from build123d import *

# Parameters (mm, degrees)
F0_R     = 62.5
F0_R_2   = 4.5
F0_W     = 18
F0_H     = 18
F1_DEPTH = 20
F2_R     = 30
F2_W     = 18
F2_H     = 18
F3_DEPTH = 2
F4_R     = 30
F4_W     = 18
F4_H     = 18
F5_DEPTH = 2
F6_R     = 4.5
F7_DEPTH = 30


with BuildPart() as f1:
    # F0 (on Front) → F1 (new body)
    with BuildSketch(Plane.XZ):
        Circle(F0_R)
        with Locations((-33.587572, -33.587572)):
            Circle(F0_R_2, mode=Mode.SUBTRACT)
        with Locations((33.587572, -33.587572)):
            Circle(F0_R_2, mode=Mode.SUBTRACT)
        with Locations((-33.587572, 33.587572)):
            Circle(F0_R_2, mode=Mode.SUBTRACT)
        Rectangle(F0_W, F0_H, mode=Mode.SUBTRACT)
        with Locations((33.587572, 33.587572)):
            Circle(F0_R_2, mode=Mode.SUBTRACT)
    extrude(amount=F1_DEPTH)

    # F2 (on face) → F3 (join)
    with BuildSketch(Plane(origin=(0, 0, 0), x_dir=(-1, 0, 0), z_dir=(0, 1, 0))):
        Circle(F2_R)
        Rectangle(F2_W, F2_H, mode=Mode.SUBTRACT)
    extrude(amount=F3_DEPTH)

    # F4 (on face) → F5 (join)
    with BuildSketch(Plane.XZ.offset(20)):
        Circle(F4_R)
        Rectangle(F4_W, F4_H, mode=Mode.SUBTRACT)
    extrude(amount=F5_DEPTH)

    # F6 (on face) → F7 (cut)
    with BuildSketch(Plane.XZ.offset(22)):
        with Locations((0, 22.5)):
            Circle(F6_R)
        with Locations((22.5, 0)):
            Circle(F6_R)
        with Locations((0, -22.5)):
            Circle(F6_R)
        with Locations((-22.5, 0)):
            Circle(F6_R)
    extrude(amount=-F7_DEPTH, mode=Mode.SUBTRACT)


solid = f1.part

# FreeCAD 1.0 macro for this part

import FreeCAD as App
import Part
import Sketcher
from FreeCAD import Vector
Q = App.Units.Quantity

doc = App.newDocument("Part")
body = doc.addObject("PartDesign::Body", "Body")

# Sketch on XZ plane
sketch1 = body.newObject("Sketcher::SketchObject", "Sketch")
sketch1.AttachmentSupport = (doc.getObject("XZ_Plane"), [""])
sketch1.MapMode = "FlatFace"
sketch1.addGeometry([
    Part.Circle(Vector(0, 0, 0), Vector(0, 0, 1), 62.5),  # 0
    Part.Circle(Vector(-33.6, -33.6, 0), Vector(0, 0, 1), 4.5),  # 1
    Part.Circle(Vector(33.6, -33.6, 0), Vector(0, 0, 1), 4.5),  # 2
    Part.LineSegment(Vector(9, -9, 0), Vector(-9, -9, 0)),  # 3
    Part.LineSegment(Vector(-9, -9, 0), Vector(-9, 9, 0)),  # 4
    Part.LineSegment(Vector(-9, 9, 0), Vector(9, 9, 0)),  # 5
    Part.LineSegment(Vector(9, 9, 0), Vector(9, -9, 0)),  # 6
    Part.Circle(Vector(-33.6, 33.6, 0), Vector(0, 0, 1), 4.5),  # 7
    Part.Circle(Vector(33.6, 33.6, 0), Vector(0, 0, 1), 4.5),  # 8
], False)
sketch1.addConstraint([
    Sketcher.Constraint("Coincident", 3, 2, 4, 1),
    Sketcher.Constraint("Coincident", 4, 2, 5, 1),
    Sketcher.Constraint("Coincident", 5, 2, 6, 1),
    Sketcher.Constraint("Coincident", 6, 2, 3, 1),
    Sketcher.Constraint("Horizontal", 3),
    Sketcher.Constraint("Vertical", 4),
    Sketcher.Constraint("Horizontal", 5),
    Sketcher.Constraint("Vertical", 6),
    Sketcher.Constraint("Coincident", 0, 3, -1, 1),
    Sketcher.Constraint("Equal", 1, 2),
    Sketcher.Constraint("Equal", 2, 7),
    Sketcher.Constraint("Equal", 7, 8),
    Sketcher.Constraint("Symmetric", 2, 3, 7, 3, -1, 1),
    Sketcher.Constraint("Symmetric", 1, 3, 8, 3, -1, 1),
    Sketcher.Constraint("Symmetric", 3, 2, 5, 2, -1, 1),
    Sketcher.Constraint("Symmetric", 1, 3, 2, 3, -2),
    Sketcher.Constraint("Equal", 5, 4),
    Sketcher.Constraint("Diameter", 0, Q("125 mm")),
    Sketcher.Constraint("Diameter", 1, Q("9 mm")),
    Sketcher.Constraint("DistanceX", 3, 2, 3, 1, Q("18 mm")),
    Sketcher.Constraint("DistanceX", 1, 3, -1, 1, Q("33.587572 mm")),
    Sketcher.Constraint("DistanceY", 1, 3, -1, 1, Q("33.587572 mm")),
])
pad1 = body.newObject("PartDesign::Pad", "Pad")
pad1.Profile = sketch1
pad1.Length = 20

# Sketch on XZ plane
sketch2 = body.newObject("Sketcher::SketchObject", "Sketch001")
sketch2.AttachmentSupport = (doc.getObject("XZ_Plane"), [""])
sketch2.MapMode = "FlatFace"
sketch2.addGeometry([
    Part.Circle(Vector(0, 0, 0), Vector(0, 0, 1), 30),  # 0
    Part.LineSegment(Vector(-9, -9, 0), Vector(9, -9, 0)),  # 1
    Part.LineSegment(Vector(9, -9, 0), Vector(9, 9, 0)),  # 2
    Part.LineSegment(Vector(9, 9, 0), Vector(-9, 9, 0)),  # 3
    Part.LineSegment(Vector(-9, 9, 0), Vector(-9, -9, 0)),  # 4
], False)
sketch2.addConstraint([
    Sketcher.Constraint("Coincident", 1, 2, 2, 1),
    Sketcher.Constraint("Coincident", 2, 2, 3, 1),
    Sketcher.Constraint("Coincident", 3, 2, 4, 1),
    Sketcher.Constraint("Coincident", 4, 2, 1, 1),
    Sketcher.Constraint("Horizontal", 1),
    Sketcher.Constraint("Vertical", 2),
    Sketcher.Constraint("Horizontal", 3),
    Sketcher.Constraint("Vertical", 4),
    Sketcher.Constraint("Coincident", 0, 3, -1, 1),
    Sketcher.Constraint("Symmetric", 1, 2, 3, 2, -1, 1),
    Sketcher.Constraint("Equal", 3, 2),
    Sketcher.Constraint("Diameter", 0, Q("60 mm")),
    Sketcher.Constraint("DistanceX", 1, 1, 1, 2, Q("18 mm")),
])
pad2 = body.newObject("PartDesign::Pad", "Pad001")
pad2.Profile = sketch2
pad2.Length = 2
pad2.Reversed = True

# Sketch on XZ plane
sketch3 = body.newObject("Sketcher::SketchObject", "Sketch002")
sketch3.AttachmentSupport = (doc.getObject("XZ_Plane"), [""])
sketch3.MapMode = "FlatFace"
sketch3.AttachmentOffset = App.Placement(Vector(0, 0, 20), App.Rotation())
sketch3.addGeometry([
    Part.Circle(Vector(0, 0, 0), Vector(0, 0, 1), 30),  # 0
    Part.LineSegment(Vector(9, -9, 0), Vector(-9, -9, 0)),  # 1
    Part.LineSegment(Vector(-9, -9, 0), Vector(-9, 9, 0)),  # 2
    Part.LineSegment(Vector(-9, 9, 0), Vector(9, 9, 0)),  # 3
    Part.LineSegment(Vector(9, 9, 0), Vector(9, -9, 0)),  # 4
], False)
sketch3.addConstraint([
    Sketcher.Constraint("Coincident", 1, 2, 2, 1),
    Sketcher.Constraint("Coincident", 2, 2, 3, 1),
    Sketcher.Constraint("Coincident", 3, 2, 4, 1),
    Sketcher.Constraint("Coincident", 4, 2, 1, 1),
    Sketcher.Constraint("Horizontal", 1),
    Sketcher.Constraint("Vertical", 2),
    Sketcher.Constraint("Horizontal", 3),
    Sketcher.Constraint("Vertical", 4),
    Sketcher.Constraint("Coincident", 0, 3, -1, 1),
    Sketcher.Constraint("Symmetric", 1, 2, 3, 2, -1, 1),
    Sketcher.Constraint("Equal", 3, 2),
    Sketcher.Constraint("Diameter", 0, Q("60 mm")),
    Sketcher.Constraint("DistanceX", 1, 2, 1, 1, Q("18 mm")),
])
pad3 = body.newObject("PartDesign::Pad", "Pad002")
pad3.Profile = sketch3
pad3.Length = 2

# Sketch on XZ plane
sketch4 = body.newObject("Sketcher::SketchObject", "Sketch003")
sketch4.AttachmentSupport = (doc.getObject("XZ_Plane"), [""])
sketch4.MapMode = "FlatFace"
sketch4.AttachmentOffset = App.Placement(Vector(0, 0, 22), App.Rotation())
sketch4.addGeometry([
    Part.Circle(Vector(0, 22.5, 0), Vector(0, 0, 1), 4.5),
    Part.Circle(Vector(22.5, 0, 0), Vector(0, 0, 1), 4.5),
    Part.Circle(Vector(0, -22.5, 0), Vector(0, 0, 1), 4.5),
    Part.Circle(Vector(-22.5, 0, 0), Vector(0, 0, 1), 4.5),
], False)
sketch4.addConstraint([
    Sketcher.Constraint("Equal", 0, 1),
    Sketcher.Constraint("Equal", 1, 2),
    Sketcher.Constraint("Equal", 2, 3),
    Sketcher.Constraint("Symmetric", 0, 3, 2, 3, -1, 1),
    Sketcher.Constraint("Symmetric", 1, 3, 3, 3, -1, 1),
    Sketcher.Constraint("PointOnObject", 0, 3, -2),
    Sketcher.Constraint("PointOnObject", 1, 3, -1),
    Sketcher.Constraint("Diameter", 0, Q("9 mm")),
    Sketcher.Constraint("DistanceY", 2, 3, 0, 3, Q("45 mm")),
    Sketcher.Constraint("DistanceX", 3, 3, 1, 3, Q("45 mm")),
])
pocket1 = body.newObject("PartDesign::Pocket", "Pocket")
pocket1.Profile = sketch4
pocket1.Length = 30

doc.recompute()
